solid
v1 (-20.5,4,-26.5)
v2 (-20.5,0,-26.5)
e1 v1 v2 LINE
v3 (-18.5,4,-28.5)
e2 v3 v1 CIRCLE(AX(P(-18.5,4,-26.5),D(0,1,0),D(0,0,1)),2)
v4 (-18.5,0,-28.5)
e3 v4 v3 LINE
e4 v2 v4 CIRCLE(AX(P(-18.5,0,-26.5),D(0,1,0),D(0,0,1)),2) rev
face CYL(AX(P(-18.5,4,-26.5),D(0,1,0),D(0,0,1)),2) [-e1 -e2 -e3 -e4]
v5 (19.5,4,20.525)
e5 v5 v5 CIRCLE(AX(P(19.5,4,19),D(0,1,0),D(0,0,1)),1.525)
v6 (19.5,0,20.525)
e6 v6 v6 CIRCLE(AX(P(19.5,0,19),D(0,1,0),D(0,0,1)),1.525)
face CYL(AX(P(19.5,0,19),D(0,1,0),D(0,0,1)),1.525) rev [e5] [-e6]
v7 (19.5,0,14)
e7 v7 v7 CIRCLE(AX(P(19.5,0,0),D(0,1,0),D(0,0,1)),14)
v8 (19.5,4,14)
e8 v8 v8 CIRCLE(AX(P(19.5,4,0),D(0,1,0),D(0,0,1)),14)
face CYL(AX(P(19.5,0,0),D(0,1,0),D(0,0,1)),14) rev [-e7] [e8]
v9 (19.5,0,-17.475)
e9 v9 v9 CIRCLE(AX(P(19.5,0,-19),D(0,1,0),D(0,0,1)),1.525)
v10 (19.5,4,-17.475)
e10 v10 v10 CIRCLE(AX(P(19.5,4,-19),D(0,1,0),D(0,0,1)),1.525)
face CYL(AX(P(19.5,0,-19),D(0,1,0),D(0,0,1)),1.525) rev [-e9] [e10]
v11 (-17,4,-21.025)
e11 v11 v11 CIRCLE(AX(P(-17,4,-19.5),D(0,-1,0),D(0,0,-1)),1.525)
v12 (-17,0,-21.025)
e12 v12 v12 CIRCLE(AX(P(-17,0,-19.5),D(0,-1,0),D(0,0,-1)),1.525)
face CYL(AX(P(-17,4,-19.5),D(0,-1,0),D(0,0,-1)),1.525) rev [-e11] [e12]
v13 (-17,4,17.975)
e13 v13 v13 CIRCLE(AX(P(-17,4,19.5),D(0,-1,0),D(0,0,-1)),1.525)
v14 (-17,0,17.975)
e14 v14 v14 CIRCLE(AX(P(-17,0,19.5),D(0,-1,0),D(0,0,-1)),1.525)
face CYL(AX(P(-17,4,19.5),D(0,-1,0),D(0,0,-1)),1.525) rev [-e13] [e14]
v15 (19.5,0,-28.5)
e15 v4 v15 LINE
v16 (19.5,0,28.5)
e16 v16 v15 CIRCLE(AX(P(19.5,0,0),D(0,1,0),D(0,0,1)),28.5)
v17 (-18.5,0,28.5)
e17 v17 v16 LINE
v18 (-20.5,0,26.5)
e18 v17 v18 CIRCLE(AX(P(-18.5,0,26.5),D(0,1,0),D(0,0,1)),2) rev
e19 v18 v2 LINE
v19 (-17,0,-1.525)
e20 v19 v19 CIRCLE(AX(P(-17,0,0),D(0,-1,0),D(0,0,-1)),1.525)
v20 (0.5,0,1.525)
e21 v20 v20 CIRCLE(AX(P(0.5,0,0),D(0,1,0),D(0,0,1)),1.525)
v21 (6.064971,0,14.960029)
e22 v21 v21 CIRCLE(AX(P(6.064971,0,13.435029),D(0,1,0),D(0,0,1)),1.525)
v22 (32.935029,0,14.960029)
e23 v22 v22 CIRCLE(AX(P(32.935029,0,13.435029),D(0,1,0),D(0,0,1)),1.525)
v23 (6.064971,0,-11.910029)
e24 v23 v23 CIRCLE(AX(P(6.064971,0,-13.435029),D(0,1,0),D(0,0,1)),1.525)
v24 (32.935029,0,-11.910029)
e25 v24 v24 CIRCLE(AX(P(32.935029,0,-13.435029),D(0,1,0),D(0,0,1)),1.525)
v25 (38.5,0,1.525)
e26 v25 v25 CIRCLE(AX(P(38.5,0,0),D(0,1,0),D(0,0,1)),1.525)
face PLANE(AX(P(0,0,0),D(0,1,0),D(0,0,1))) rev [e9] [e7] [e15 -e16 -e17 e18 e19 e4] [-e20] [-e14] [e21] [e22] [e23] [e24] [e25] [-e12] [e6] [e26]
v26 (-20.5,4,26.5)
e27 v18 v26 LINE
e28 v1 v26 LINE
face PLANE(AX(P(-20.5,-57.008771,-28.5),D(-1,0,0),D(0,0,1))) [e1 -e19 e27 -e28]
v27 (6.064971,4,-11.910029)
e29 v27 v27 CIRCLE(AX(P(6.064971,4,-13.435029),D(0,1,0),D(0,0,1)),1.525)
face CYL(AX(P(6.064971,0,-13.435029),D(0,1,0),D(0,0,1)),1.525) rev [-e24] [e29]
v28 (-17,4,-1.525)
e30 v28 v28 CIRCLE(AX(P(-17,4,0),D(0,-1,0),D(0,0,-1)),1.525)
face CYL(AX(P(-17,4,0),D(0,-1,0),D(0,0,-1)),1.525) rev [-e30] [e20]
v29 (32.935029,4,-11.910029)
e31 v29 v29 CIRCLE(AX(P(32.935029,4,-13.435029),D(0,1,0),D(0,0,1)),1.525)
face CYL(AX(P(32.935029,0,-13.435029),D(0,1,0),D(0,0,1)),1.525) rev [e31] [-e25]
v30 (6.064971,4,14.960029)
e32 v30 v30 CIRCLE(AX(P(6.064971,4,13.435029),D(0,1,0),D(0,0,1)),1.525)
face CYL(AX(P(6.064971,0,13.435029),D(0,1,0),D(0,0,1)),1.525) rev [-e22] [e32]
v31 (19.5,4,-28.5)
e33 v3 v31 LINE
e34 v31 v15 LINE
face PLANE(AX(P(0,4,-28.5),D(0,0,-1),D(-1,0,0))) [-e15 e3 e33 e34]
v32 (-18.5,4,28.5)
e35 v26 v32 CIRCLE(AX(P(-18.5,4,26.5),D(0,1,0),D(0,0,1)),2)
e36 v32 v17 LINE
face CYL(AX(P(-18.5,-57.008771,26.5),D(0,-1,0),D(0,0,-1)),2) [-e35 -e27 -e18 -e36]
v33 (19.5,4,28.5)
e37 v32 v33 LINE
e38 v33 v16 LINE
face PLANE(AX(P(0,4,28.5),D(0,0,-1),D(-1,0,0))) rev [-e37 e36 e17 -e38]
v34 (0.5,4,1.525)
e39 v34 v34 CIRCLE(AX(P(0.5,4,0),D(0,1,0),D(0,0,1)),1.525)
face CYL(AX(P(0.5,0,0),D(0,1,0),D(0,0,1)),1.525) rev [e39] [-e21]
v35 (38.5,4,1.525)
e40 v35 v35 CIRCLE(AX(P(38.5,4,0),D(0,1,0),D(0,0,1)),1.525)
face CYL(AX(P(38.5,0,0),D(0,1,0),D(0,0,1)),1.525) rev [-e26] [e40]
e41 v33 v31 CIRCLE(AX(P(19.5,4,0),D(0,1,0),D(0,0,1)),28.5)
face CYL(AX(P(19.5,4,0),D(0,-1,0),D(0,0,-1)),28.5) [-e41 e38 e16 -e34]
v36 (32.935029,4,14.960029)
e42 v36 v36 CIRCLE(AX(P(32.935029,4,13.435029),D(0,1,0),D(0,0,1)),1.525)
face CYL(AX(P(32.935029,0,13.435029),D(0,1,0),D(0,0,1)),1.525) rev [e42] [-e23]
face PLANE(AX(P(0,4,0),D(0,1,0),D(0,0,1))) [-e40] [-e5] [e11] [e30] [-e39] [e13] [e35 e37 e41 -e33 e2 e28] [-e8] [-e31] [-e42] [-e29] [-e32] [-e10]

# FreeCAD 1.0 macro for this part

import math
import FreeCAD as App
import Part
import Sketcher


def edges_at(feature, points):
    """Names of the edges that pass closest to the given points."""
    edges = feature.Shape.Edges
    near = lambda p: min(range(len(edges)), key=lambda i: edges[i].distToShape(Part.Vertex(*p))[0])
    return sorted({f"Edge{near(p) + 1}" for p in points})


def add_polygon(sketch, points):
    """Adds a closed chain of lines whose ends are joined by coincident constraints."""
    first, n = sketch.GeometryCount, len(points)
    for a, b in zip(points, points[1:] + points[:1]):
        sketch.addGeometry(Part.LineSegment(App.Vector(*a, 0), App.Vector(*b, 0)), False)
    for i in range(n):
        sketch.addConstraint(Sketcher.Constraint("Coincident", first + i, 2, first + (i + 1) % n, 1))

doc = App.newDocument("Part")
body = doc.addObject("PartDesign::Body", "Body")

# Sketch on XZ plane
sketch1 = doc.addObject("Sketcher::SketchObject", "Sketch")
body.addObject(sketch1)
sketch1.AttachmentSupport = (doc.XZ_Plane, [""])
sketch1.MapMode = "FlatFace"
sketch1.addGeometry([
    Part.ArcOfCircle(Part.Circle(App.Vector(19.5, 0, 0), App.Vector(0, 0, 1), 28.5), math.radians(0), math.radians(90)),  # 0
    Part.ArcOfCircle(Part.Circle(App.Vector(19.5, 0, 0), App.Vector(0, 0, 1), 28.5), math.radians(-90), math.radians(0)),  # 1
    Part.LineSegment(App.Vector(19.5, -28.5, 0), App.Vector(-19.5, -28.5, 0)),  # 2
    Part.LineSegment(App.Vector(-19.5, -28.5, 0), App.Vector(-19.5, 28.5, 0)),  # 3
    Part.LineSegment(App.Vector(-19.5, 28.5, 0), App.Vector(19.5, 28.5, 0)),  # 4
], False)
sketch1.addConstraint([
    Sketcher.Constraint("Tangent", 0, 1, 1, 2),
    Sketcher.Constraint("Tangent", 1, 1, 2, 1),
    Sketcher.Constraint("Coincident", 2, 2, 3, 1),
    Sketcher.Constraint("Coincident", 3, 2, 4, 1),
    Sketcher.Constraint("Tangent", 4, 2, 0, 2),
    Sketcher.Constraint("Horizontal", 2),
    Sketcher.Constraint("Vertical", 3),
    Sketcher.Constraint("Horizontal", 4),
    Sketcher.Constraint("Equal", 0, 1),
    Sketcher.Constraint("Symmetric", 1, 1, 3, 2, -1, 1),
    Sketcher.Constraint("PointOnObject", 0, 1, -1),
    Sketcher.Constraint("Radius", 0, 28.5),
    Sketcher.Constraint("DistanceX", 2, 2, 2, 1, 39.0),
])
pad1 = doc.addObject("PartDesign::Pad", "Pad")
body.addObject(pad1)
pad1.Profile = sketch1
pad1.Length = 4
pad1.Reversed = True

# Sketch on XZ plane
sketch2 = doc.addObject("Sketcher::SketchObject", "Sketch001")
body.addObject(sketch2)
sketch2.AttachmentSupport = (doc.XZ_Plane, [""])
sketch2.MapMode = "FlatFace"
sketch2.AttachmentOffset = App.Placement(App.Vector(0, 0, -4), App.Rotation())
sketch2.addGeometry([
    Part.Circle(App.Vector(32.935029, -13.435029, 0), App.Vector(0, 0, 1), 1.525),  # 0
    Part.Circle(App.Vector(32.935029, 13.435029, 0), App.Vector(0, 0, 1), 1.525),  # 1
    Part.Circle(App.Vector(6.064971, 13.435029, 0), App.Vector(0, 0, 1), 1.525),  # 2
    Part.Circle(App.Vector(6.064971, -13.435029, 0), App.Vector(0, 0, 1), 1.525),  # 3
    Part.Circle(App.Vector(38.5, 0, 0), App.Vector(0, 0, 1), 1.525),  # 4
    Part.Circle(App.Vector(19.5, 19, 0), App.Vector(0, 0, 1), 1.525),  # 5
    Part.Circle(App.Vector(0.5, 0, 0), App.Vector(0, 0, 1), 1.525),  # 6
    Part.Circle(App.Vector(19.5, -19, 0), App.Vector(0, 0, 1), 1.525),  # 7
], False)
sketch2.addConstraint([
    Sketcher.Constraint("Equal", 0, 1),
    Sketcher.Constraint("Equal", 1, 2),
    Sketcher.Constraint("Equal", 2, 3),
    Sketcher.Constraint("Equal", 3, 4),
    Sketcher.Constraint("Equal", 4, 5),
    Sketcher.Constraint("Equal", 5, 6),
    Sketcher.Constraint("Equal", 6, 7),
    Sketcher.Constraint("Symmetric", 0, 3, 1, 3, -1),
    Sketcher.Constraint("Symmetric", 2, 3, 3, 3, -1),
    Sketcher.Constraint("Symmetric", 5, 3, 7, 3, -1),
    Sketcher.Constraint("PointOnObject", 4, 3, -1),
    Sketcher.Constraint("PointOnObject", 6, 3, -1),
    Sketcher.Constraint("Horizontal", 1, 3, 2, 3),
    Sketcher.Constraint("Diameter", 0, 3.05),
    Sketcher.Constraint("DistanceY", -1, 1, 5, 3, 19.0),
    Sketcher.Constraint("DistanceX", 5, 3, 4, 3, 19.0),
    Sketcher.Constraint("DistanceX", 6, 3, 5, 3, 19.0),
    Sketcher.Constraint("DistanceX", -1, 1, 4, 3, 38.5),
    Sketcher.Constraint("DistanceX", -1, 1, 0, 3, 32.935029),
    Sketcher.Constraint("DistanceY", 0, 3, -1, 1, 13.435029),
    Sketcher.Constraint("DistanceX", -1, 1, 2, 3, 6.064971),
])
pocket1 = doc.addObject("PartDesign::Pocket", "Pocket")
body.addObject(pocket1)
pocket1.Profile = sketch2
pocket1.Type = "ThroughAll"
pocket1.Reversed = True

# Sketch on XZ plane
sketch3 = doc.addObject("Sketcher::SketchObject", "Sketch002")
body.addObject(sketch3)
sketch3.AttachmentSupport = (doc.XZ_Plane, [""])
sketch3.MapMode = "FlatFace"
sketch3.AttachmentOffset = App.Placement(App.Vector(0, 0, -4), App.Rotation())
sketch3.addGeometry(Part.Circle(App.Vector(19.5, 0, 0), App.Vector(0, 0, 1), 14), False)
sketch3.addConstraint([
    Sketcher.Constraint("PointOnObject", 0, 3, -1),
    Sketcher.Constraint("Diameter", 0, 28.0),
    Sketcher.Constraint("DistanceX", -1, 1, 0, 3, 19.5),
])
pocket2 = doc.addObject("PartDesign::Pocket", "Pocket001")
body.addObject(pocket2)
pocket2.Profile = sketch3
pocket2.Type = "ThroughAll"
pocket2.Reversed = True

# Sketch on XZ plane
sketch4 = doc.addObject("Sketcher::SketchObject", "Sketch003")
body.addObject(sketch4)
sketch4.AttachmentSupport = (doc.XZ_Plane, [""])
sketch4.MapMode = "FlatFace"
sketch4.addGeometry([
    Part.Circle(App.Vector(-17, 0, 0), App.Vector(0, 0, 1), 1.525),
    Part.Circle(App.Vector(-17, 19.5, 0), App.Vector(0, 0, 1), 1.525),
    Part.Circle(App.Vector(-17, -19.5, 0), App.Vector(0, 0, 1), 1.525),
], False)
sketch4.addConstraint([
    Sketcher.Constraint("Equal", 0, 1),
    Sketcher.Constraint("Equal", 1, 2),
    Sketcher.Constraint("Symmetric", 1, 3, 2, 3, -1),
    Sketcher.Constraint("PointOnObject", 0, 3, -1),
    Sketcher.Constraint("Vertical", 0, 3, 1, 3),
    Sketcher.Constraint("Diameter", 0, 3.05),
    Sketcher.Constraint("DistanceX", 0, 3, -1, 1, 17.0),
    Sketcher.Constraint("DistanceY", 2, 3, 1, 3, 39.0),
])
pocket3 = doc.addObject("PartDesign::Pocket", "Pocket002")
body.addObject(pocket3)
pocket3.Profile = sketch4
pocket3.Type = "ThroughAll"

# Sketch on XZ plane
sketch5 = doc.addObject("Sketcher::SketchObject", "Sketch004")
body.addObject(sketch5)
sketch5.AttachmentSupport = (doc.XZ_Plane, [""])
sketch5.MapMode = "FlatFace"
sketch5.AttachmentOffset = App.Placement(App.Vector(0, 0, -4), App.Rotation())
add_polygon(sketch5, [(-20.5, -28.5), (-20.5, 28.5), (-19.5, 28.5), (-19.5, -28.5)])  # lines 0-3
sketch5.addConstraint([
    Sketcher.Constraint("Vertical", 0),
    Sketcher.Constraint("Horizontal", 1),
    Sketcher.Constraint("Vertical", 2),
    Sketcher.Constraint("Horizontal", 3),
    Sketcher.Constraint("DistanceX", 1, 1, 1, 2, 1.0),
    Sketcher.Constraint("DistanceY", 0, 1, 0, 2, 57.0),
    Sketcher.Constraint("DistanceX", 0, 2, -1, 1, 20.5),
    Sketcher.Constraint("DistanceY", -1, 1, 0, 2, 28.5),
])
pad2 = doc.addObject("PartDesign::Pad", "Pad001")
body.addObject(pad2)
pad2.Profile = sketch5
pad2.Length = 4
doc.recompute()

fillet = doc.addObject("PartDesign::Fillet", "Fillet")
body.addObject(fillet)
fillet.Base = (pad2, edges_at(pad2, [(-20.5, 2, 28.5), (-20.5, 2, -28.5)]))
fillet.Radius = 2

doc.recompute()
